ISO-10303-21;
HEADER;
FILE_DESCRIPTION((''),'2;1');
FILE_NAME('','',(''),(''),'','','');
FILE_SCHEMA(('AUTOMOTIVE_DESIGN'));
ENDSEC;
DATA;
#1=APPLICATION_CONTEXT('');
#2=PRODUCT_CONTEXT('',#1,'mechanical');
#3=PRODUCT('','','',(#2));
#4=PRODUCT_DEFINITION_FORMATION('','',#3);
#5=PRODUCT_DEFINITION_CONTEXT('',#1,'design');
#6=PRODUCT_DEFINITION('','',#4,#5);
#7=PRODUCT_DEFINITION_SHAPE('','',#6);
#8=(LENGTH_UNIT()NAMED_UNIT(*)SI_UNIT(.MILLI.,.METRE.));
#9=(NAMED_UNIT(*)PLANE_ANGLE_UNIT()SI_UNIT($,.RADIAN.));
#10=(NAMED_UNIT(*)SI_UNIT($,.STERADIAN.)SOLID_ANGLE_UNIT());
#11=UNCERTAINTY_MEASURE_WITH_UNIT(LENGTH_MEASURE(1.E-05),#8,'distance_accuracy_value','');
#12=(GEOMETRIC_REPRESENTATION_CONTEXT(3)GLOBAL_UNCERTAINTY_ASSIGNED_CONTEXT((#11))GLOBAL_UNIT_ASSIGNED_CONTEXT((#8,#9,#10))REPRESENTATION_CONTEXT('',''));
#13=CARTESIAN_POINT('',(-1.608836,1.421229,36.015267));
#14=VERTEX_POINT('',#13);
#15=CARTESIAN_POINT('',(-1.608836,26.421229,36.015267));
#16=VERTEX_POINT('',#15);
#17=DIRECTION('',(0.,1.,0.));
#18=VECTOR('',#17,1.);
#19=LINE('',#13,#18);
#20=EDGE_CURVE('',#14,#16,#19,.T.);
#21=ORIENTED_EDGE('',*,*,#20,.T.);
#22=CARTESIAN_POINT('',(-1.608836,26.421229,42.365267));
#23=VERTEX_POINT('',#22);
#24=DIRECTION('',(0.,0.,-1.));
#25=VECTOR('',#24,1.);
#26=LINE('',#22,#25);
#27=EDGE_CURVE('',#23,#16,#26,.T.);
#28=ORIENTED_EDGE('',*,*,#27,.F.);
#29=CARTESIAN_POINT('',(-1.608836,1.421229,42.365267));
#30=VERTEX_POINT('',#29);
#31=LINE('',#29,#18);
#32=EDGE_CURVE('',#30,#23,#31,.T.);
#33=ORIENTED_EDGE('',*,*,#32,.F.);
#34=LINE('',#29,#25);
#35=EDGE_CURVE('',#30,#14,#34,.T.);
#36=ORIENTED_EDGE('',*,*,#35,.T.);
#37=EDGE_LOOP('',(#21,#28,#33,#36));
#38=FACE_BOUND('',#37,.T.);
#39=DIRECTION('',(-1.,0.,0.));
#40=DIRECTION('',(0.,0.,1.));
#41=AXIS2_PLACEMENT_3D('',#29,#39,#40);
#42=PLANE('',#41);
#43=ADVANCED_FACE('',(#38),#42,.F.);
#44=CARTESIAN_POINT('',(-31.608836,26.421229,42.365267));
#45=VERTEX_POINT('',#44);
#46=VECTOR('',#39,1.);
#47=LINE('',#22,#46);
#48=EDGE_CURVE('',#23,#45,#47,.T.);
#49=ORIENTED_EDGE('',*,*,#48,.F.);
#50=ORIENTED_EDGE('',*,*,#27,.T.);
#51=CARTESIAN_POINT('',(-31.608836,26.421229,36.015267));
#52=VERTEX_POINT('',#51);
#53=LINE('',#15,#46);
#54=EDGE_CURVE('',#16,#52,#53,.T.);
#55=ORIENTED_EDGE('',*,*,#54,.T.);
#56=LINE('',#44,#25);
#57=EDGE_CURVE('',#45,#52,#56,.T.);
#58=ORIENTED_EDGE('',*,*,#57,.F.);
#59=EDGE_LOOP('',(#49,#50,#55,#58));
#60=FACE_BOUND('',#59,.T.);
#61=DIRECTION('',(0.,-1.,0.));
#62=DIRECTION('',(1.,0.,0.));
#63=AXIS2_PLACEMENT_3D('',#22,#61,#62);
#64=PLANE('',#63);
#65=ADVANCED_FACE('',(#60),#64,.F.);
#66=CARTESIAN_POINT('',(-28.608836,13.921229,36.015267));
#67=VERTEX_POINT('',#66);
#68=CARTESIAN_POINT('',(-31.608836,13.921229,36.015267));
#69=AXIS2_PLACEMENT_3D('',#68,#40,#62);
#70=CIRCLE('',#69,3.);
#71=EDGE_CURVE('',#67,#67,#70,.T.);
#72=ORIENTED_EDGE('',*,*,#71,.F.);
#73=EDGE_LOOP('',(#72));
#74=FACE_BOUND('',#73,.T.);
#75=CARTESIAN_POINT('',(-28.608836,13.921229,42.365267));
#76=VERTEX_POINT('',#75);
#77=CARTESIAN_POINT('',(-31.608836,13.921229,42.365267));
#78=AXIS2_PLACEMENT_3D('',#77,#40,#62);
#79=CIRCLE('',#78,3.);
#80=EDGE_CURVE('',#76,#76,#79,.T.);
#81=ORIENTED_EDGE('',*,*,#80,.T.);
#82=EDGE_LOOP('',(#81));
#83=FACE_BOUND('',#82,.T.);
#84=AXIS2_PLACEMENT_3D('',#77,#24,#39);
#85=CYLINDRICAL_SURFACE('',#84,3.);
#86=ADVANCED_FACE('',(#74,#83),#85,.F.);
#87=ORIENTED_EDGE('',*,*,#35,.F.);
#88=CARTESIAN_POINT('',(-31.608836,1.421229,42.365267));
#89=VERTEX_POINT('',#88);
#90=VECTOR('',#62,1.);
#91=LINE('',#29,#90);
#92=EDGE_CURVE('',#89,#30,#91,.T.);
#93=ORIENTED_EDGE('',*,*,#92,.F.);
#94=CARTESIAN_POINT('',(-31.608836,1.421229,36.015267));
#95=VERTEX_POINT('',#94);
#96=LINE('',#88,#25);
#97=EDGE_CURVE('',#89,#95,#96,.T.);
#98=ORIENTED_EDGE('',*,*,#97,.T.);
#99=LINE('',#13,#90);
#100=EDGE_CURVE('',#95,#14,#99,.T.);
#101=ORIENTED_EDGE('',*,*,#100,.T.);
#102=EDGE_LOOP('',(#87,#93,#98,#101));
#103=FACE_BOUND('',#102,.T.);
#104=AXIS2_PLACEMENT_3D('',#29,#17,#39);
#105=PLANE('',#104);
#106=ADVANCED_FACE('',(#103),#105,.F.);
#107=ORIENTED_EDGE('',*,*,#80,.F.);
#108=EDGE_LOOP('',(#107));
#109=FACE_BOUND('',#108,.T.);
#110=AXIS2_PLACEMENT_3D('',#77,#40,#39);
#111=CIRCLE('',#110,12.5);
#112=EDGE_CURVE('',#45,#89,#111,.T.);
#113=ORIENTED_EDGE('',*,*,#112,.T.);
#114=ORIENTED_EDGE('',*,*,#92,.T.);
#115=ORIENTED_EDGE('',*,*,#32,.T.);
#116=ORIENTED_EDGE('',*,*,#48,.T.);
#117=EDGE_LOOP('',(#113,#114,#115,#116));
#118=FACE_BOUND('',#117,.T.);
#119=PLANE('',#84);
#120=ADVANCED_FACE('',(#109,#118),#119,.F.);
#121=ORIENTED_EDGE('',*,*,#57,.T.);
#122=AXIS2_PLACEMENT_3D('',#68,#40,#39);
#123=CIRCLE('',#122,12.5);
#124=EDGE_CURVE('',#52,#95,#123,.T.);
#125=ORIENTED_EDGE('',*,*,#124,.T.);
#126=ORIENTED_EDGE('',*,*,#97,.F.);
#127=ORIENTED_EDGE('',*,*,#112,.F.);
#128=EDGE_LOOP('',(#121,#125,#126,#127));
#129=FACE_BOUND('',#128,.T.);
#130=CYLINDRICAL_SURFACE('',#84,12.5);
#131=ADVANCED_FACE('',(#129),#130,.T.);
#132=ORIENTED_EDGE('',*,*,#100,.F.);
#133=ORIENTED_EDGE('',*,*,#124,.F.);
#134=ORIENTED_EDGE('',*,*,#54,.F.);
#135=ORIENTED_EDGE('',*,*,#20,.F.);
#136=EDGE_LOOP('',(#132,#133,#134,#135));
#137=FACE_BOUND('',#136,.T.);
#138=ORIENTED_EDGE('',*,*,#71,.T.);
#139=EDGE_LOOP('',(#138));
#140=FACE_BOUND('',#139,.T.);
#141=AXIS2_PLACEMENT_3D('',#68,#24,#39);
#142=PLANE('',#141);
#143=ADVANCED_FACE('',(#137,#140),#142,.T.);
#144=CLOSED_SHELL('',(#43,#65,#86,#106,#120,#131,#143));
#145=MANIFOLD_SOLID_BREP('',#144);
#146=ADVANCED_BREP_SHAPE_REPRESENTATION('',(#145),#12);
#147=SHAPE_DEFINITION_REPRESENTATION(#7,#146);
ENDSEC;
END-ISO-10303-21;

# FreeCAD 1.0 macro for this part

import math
import FreeCAD as App
import Part
import Sketcher

V = App.Vector

doc = App.newDocument("Part")
body = doc.addObject("PartDesign::Body", "Body")

# Sketch on XY plane
sketch1 = body.newObject("Sketcher::SketchObject", "Sketch")
sketch1.AttachmentSupport = (doc.getObject("XY_Plane"), [""])
sketch1.MapMode = "FlatFace"
sketch1.AttachmentOffset = App.Placement(V(0, 0, 36.015267), App.Rotation())
sketch1.addGeometry([
    Part.LineSegment(V(-31.608836, 1.421229, 0), V(-1.608836, 1.421229, 0)),  # 0
    Part.LineSegment(V(-1.608836, 1.421229, 0), V(-1.608836, 26.421229, 0)),  # 1
    Part.LineSegment(V(-1.608836, 26.421229, 0), V(-31.608836, 26.421229, 0)),  # 2
    Part.ArcOfCircle(Part.Circle(V(-31.608836, 13.921229, 0), V(0, 0, 1), 12.5), math.radians(90), math.radians(270)),  # 3
    Part.Circle(V(-31.608836, 13.921229, 0), V(0, 0, 1), 3),  # 4
], False)
sketch1.addConstraint([
    Sketcher.Constraint("Coincident", 0, 2, 1, 1),
    Sketcher.Constraint("Coincident", 1, 2, 2, 1),
    Sketcher.Constraint("Tangent", 2, 2, 3, 1),
    Sketcher.Constraint("Tangent", 3, 2, 0, 1),
    Sketcher.Constraint("Horizontal", 0),
    Sketcher.Constraint("Vertical", 1),
    Sketcher.Constraint("Horizontal", 2),
    Sketcher.Constraint("Coincident", 4, 3, 3, 3),
    Sketcher.Constraint("Diameter", 4, 6.0),
    Sketcher.Constraint("Radius", 3, 12.5),
    Sketcher.Constraint("DistanceX", 0, 1, 0, 2, 30.0),
    Sketcher.Constraint("DistanceY", -1, 1, 3, 3, 13.921229),
    Sketcher.Constraint("DistanceX", 3, 3, -1, 1, 31.608836),
])
pad1 = body.newObject("PartDesign::Pad", "Pad")
pad1.Profile = sketch1
pad1.Length = 6.35

doc.recompute()
